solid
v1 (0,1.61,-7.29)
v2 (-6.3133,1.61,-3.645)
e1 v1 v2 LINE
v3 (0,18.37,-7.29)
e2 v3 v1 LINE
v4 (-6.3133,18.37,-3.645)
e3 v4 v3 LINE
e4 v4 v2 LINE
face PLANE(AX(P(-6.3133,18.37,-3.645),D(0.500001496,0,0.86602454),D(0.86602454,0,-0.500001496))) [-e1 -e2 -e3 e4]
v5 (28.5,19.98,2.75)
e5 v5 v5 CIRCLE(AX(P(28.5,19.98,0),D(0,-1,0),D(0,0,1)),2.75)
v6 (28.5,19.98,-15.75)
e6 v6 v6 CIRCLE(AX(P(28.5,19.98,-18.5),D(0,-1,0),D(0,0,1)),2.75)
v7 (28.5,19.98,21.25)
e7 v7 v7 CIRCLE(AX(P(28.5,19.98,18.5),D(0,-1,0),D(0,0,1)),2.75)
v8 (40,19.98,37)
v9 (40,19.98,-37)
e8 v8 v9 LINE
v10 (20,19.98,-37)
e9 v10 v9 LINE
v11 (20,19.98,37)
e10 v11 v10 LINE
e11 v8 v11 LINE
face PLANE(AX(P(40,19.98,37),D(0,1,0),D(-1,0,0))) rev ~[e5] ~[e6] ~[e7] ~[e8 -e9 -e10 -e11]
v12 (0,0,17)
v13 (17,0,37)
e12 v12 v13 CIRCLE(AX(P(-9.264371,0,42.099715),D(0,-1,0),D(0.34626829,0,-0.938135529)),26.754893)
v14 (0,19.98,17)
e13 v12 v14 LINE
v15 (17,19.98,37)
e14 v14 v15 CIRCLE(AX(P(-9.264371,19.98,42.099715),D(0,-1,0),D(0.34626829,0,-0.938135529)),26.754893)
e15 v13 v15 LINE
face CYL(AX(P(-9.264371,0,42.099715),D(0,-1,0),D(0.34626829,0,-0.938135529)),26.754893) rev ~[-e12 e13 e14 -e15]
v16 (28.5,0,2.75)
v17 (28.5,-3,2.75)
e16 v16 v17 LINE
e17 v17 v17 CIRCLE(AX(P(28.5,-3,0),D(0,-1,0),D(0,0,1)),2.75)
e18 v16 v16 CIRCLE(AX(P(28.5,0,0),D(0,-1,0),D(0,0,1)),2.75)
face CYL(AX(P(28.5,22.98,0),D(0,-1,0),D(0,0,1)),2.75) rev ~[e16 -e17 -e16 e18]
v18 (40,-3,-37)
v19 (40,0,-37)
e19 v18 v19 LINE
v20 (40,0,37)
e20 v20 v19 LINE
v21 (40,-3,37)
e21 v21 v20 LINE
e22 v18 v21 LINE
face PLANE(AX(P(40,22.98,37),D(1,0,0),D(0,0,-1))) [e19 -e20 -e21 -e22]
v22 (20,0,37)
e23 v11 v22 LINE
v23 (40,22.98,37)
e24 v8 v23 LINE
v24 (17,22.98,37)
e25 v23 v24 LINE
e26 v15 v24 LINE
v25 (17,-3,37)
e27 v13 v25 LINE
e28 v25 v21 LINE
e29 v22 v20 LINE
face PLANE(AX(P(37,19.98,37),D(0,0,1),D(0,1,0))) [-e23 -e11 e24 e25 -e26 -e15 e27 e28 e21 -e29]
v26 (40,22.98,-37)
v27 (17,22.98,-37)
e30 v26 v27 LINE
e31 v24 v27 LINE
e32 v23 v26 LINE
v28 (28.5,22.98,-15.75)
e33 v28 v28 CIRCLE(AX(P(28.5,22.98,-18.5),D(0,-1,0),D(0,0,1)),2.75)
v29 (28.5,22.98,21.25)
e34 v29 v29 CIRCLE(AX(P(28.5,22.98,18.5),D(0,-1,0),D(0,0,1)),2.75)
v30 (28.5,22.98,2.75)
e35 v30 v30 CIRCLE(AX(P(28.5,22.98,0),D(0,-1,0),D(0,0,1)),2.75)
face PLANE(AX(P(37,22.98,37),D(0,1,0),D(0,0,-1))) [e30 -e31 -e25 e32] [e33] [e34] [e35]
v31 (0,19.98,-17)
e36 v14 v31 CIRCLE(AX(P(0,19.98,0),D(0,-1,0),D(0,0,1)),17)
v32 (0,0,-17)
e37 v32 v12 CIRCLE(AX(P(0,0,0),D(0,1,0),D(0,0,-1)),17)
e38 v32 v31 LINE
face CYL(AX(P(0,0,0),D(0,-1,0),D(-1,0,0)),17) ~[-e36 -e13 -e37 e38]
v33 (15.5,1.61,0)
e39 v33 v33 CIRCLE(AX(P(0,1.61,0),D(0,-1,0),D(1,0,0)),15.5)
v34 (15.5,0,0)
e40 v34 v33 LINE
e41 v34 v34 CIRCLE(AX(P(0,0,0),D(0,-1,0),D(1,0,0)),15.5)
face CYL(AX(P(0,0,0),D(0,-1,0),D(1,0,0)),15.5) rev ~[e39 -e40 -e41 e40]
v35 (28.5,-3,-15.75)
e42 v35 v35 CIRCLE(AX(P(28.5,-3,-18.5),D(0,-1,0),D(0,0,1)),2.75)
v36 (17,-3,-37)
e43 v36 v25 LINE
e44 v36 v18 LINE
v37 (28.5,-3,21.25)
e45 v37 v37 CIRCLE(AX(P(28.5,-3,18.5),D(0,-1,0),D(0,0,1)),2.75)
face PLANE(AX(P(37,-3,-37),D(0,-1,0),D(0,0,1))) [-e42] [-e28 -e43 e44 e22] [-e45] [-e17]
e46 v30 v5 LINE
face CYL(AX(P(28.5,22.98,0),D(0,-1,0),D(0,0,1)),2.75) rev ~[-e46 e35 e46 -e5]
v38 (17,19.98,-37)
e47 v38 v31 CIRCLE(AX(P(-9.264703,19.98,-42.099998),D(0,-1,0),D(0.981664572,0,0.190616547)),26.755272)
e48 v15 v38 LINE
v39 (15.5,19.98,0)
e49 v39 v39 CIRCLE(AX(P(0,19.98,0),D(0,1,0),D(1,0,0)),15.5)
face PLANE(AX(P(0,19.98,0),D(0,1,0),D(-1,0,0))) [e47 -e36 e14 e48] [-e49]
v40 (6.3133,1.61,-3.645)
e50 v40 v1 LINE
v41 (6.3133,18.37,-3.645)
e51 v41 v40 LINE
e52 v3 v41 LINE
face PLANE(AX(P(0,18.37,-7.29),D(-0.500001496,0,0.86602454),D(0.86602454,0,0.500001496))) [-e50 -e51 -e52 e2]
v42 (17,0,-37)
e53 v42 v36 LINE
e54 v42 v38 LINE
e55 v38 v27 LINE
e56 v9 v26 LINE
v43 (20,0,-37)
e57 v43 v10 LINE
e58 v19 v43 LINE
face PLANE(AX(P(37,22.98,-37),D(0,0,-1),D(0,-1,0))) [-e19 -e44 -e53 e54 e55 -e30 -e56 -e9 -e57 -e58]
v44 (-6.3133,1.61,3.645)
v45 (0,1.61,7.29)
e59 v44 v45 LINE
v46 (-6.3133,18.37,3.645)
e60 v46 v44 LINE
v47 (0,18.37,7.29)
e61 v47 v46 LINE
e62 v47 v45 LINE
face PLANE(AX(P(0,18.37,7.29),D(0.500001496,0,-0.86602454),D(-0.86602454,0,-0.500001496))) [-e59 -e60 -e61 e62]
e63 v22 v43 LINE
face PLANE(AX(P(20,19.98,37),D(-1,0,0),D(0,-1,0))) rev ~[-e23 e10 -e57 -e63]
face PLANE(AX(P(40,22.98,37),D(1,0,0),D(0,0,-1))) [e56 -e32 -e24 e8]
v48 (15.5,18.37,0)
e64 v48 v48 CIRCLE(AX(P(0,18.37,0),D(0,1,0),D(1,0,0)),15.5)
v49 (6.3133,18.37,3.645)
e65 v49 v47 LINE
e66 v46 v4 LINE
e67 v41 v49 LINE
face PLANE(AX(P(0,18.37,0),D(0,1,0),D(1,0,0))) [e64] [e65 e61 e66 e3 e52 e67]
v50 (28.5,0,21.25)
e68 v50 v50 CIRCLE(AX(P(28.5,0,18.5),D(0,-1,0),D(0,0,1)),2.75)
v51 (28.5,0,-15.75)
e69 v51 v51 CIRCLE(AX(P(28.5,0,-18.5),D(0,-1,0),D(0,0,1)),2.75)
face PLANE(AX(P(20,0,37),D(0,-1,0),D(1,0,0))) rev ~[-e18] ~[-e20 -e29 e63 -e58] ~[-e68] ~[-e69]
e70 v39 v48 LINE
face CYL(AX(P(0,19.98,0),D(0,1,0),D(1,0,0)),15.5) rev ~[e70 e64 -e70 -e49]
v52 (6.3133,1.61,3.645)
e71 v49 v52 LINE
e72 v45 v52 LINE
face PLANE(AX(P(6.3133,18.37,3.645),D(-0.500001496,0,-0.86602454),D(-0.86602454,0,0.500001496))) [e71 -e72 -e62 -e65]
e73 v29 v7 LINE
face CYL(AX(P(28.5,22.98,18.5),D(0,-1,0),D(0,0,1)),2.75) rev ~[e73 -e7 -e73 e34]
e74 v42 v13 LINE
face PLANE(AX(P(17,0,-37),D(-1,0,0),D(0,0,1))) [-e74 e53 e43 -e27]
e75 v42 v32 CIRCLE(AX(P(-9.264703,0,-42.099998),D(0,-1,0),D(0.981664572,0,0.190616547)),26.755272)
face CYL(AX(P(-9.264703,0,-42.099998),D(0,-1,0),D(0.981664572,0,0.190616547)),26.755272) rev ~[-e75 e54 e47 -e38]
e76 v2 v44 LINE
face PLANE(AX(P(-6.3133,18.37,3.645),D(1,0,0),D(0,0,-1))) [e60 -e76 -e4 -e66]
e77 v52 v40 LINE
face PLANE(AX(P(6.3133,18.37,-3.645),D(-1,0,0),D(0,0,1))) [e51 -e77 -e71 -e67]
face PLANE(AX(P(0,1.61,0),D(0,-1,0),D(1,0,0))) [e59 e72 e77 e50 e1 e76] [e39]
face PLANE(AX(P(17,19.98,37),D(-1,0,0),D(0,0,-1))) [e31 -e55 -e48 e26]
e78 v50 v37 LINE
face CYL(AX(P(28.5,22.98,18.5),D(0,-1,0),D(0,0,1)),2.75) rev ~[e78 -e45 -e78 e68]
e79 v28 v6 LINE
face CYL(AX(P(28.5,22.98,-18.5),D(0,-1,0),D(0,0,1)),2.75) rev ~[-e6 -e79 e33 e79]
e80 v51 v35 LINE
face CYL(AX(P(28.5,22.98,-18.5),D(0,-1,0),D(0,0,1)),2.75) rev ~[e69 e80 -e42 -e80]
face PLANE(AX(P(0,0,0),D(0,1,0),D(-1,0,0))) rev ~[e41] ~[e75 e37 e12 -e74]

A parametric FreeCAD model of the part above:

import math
import FreeCAD as App
import Part
import Sketcher
Q = App.Units.Quantity


def add_polygon(sketch, points):
    """Adds a closed chain of lines whose ends are joined by coincident constraints."""
    first, n = sketch.GeometryCount, len(points)
    for a, b in zip(points, points[1:] + points[:1]):
        sketch.addGeometry(Part.LineSegment(App.Vector(*a, 0), App.Vector(*b, 0)), False)
    for i in range(n):
        sketch.addConstraint(Sketcher.Constraint("Coincident", first + i, 2, first + (i + 1) % n, 1))

doc = App.newDocument("Part")
body = doc.addObject("PartDesign::Body", "Body")

# Sketch on XZ plane
sketch1 = doc.addObject("Sketcher::SketchObject", "Sketch")
body.addObject(sketch1)
sketch1.AttachmentSupport = (doc.XZ_Plane, [""])
sketch1.MapMode = "FlatFace"
sketch1.addGeometry(Part.Circle(App.Vector(0, 0, 0), App.Vector(0, 0, 1), 17), False)
sketch1.addConstraint([
    Sketcher.Constraint("Coincident", 0, 3, -1, 1),
    Sketcher.Constraint("Diameter", 0, Q("34 mm")),
])
pad1 = doc.addObject("PartDesign::Pad", "Pad")
body.addObject(pad1)
pad1.Profile = sketch1
pad1.Length = 19.98
pad1.Reversed = True

# Sketch on XZ plane
sketch2 = doc.addObject("Sketcher::SketchObject", "Sketch001")
body.addObject(sketch2)
sketch2.AttachmentSupport = (doc.XZ_Plane, [""])
sketch2.MapMode = "FlatFace"
sketch2.AttachmentOffset = App.Placement(App.Vector(0, 0, -19.98), App.Rotation())
sketch2.addGeometry(Part.Circle(App.Vector(0, 0, 0), App.Vector(0, 0, 1), 16), False)
sketch2.addConstraint([
    Sketcher.Constraint("Coincident", 0, 3, -1, 1),
    Sketcher.Constraint("Diameter", 0, Q("31 mm")),
])
pocket1 = doc.addObject("PartDesign::Pocket", "Pocket")
body.addObject(pocket1)
pocket1.Profile = sketch2
pocket1.Length = 1.61
pocket1.Reversed = True

# Sketch on XZ plane
sketch3 = doc.addObject("Sketcher::SketchObject", "Sketch002")
body.addObject(sketch3)
sketch3.AttachmentSupport = (doc.XZ_Plane, [""])
sketch3.MapMode = "FlatFace"
sketch3.addGeometry(Part.Circle(App.Vector(0, 0, 0), App.Vector(0, 0, 1), 16), False)
sketch3.addConstraint([
    Sketcher.Constraint("Coincident", 0, 3, -1, 1),
    Sketcher.Constraint("Diameter", 0, Q("31 mm")),
])
pocket2 = doc.addObject("PartDesign::Pocket", "Pocket001")
body.addObject(pocket2)
pocket2.Profile = sketch3
pocket2.Length = 1.61

# Sketch on XZ plane
sketch4 = doc.addObject("Sketcher::SketchObject", "Sketch003")
body.addObject(sketch4)
sketch4.AttachmentSupport = (doc.XZ_Plane, [""])
sketch4.MapMode = "FlatFace"
sketch4.addGeometry([
    Part.ArcOfCircle(Part.Circle(App.Vector(-9, -42, 0), App.Vector(0, 0, 1), 27), math.radians(11), math.radians(70)),  # 0
    Part.LineSegment(App.Vector(17, -37, 0), App.Vector(37, -37, 0)),  # 1
    Part.LineSegment(App.Vector(37, -37, 0), App.Vector(37, 37, 0)),  # 2
    Part.LineSegment(App.Vector(37, 37, 0), App.Vector(17, 37, 0)),  # 3
    Part.ArcOfCircle(Part.Circle(App.Vector(-9, 42, 0), App.Vector(0, 0, 1), 27), math.radians(-70), math.radians(-11)),  # 4
    Part.ArcOfCircle(Part.Circle(App.Vector(0, 0, 0), App.Vector(0, 0, 1), 17), math.radians(-90), math.radians(90)),  # 5
], False)
sketch4.addConstraint([
    Sketcher.Constraint("Coincident", 0, 1, 1, 1),
    Sketcher.Constraint("Coincident", 1, 2, 2, 1),
    Sketcher.Constraint("Coincident", 2, 2, 3, 1),
    Sketcher.Constraint("Coincident", 3, 2, 4, 2),
    Sketcher.Constraint("Coincident", 4, 1, 5, 2),
    Sketcher.Constraint("Coincident", 5, 1, 0, 2),
    Sketcher.Constraint("Horizontal", 1),
    Sketcher.Constraint("Vertical", 2),
    Sketcher.Constraint("Horizontal", 3),
    Sketcher.Constraint("Coincident", 5, 3, -1, 1),
    Sketcher.Constraint("Equal", 0, 4),
    Sketcher.Constraint("Symmetric", 0, 3, 4, 3, -1),
    Sketcher.Constraint("PointOnObject", 4, 1, -2),
    Sketcher.Constraint("Vertical", 0, 1, 3, 2),
    Sketcher.Constraint("DistanceX", 1, 1, 1, 2, Q("20 mm")),
    Sketcher.Constraint("Radius", 5, Q("17 mm")),
    Sketcher.Constraint("DistanceY", 4, 1, 3, 2, Q("20 mm")),
    Sketcher.Constraint("DistanceX", -1, 1, 0, 1, Q("17 mm")),
    Sketcher.Constraint("Radius", 0, Q("26.755 mm")),
])
pad2 = doc.addObject("PartDesign::Pad", "Pad001")
body.addObject(pad2)
pad2.Profile = sketch4
pad2.Length = 19.98
pad2.Reversed = True

# Sketch on XZ plane
sketch5 = doc.addObject("Sketcher::SketchObject", "Sketch004")
body.addObject(sketch5)
sketch5.AttachmentSupport = (doc.XZ_Plane, [""])
sketch5.MapMode = "FlatFace"
sketch5.AttachmentOffset = App.Placement(App.Vector(0, 0, -19.98), App.Rotation())
add_polygon(sketch5, [(17, 37), (37, 37), (37, -37), (17, -37)])  # lines 0-3
sketch5.addConstraint([
    Sketcher.Constraint("Horizontal", 0),
    Sketcher.Constraint("Vertical", 1),
    Sketcher.Constraint("Horizontal", 2),
    Sketcher.Constraint("Vertical", 3),
    Sketcher.Constraint("DistanceX", 0, 1, 0, 2, Q("20 mm")),
    Sketcher.Constraint("DistanceY", 1, 2, 1, 1, Q("74 mm")),
    Sketcher.Constraint("DistanceX", -1, 1, 0, 2, Q("37 mm")),
    Sketcher.Constraint("DistanceY", -1, 1, 0, 2, Q("37 mm")),
])
pad3 = doc.addObject("PartDesign::Pad", "Pad002")
body.addObject(pad3)
pad3.Profile = sketch5
pad3.Length = 3
pad3.Reversed = True

# Sketch on XZ plane
sketch6 = doc.addObject("Sketcher::SketchObject", "Sketch005")
body.addObject(sketch6)
sketch6.AttachmentSupport = (doc.XZ_Plane, [""])
sketch6.MapMode = "FlatFace"
add_polygon(sketch6, [(37, 37), (17, 37), (17, -37), (37, -37)])  # lines 0-3
sketch6.addConstraint([
    Sketcher.Constraint("Horizontal", 0),
    Sketcher.Constraint("Vertical", 1),
    Sketcher.Constraint("Horizontal", 2),
    Sketcher.Constraint("Vertical", 3),
    Sketcher.Constraint("DistanceX", 0, 2, 0, 1, Q("20 mm")),
    Sketcher.Constraint("DistanceY", 1, 2, 1, 1, Q("74 mm")),
    Sketcher.Constraint("DistanceX", -1, 1, 0, 2, Q("17 mm")),
    Sketcher.Constraint("DistanceY", -1, 1, 0, 2, Q("37 mm")),
])
pad4 = doc.addObject("PartDesign::Pad", "Pad003")
body.addObject(pad4)
pad4.Profile = sketch6
pad4.Length = 3

# Sketch on YZ plane
sketch7 = doc.addObject("Sketcher::SketchObject", "Sketch006")
body.addObject(sketch7)
sketch7.AttachmentSupport = (doc.YZ_Plane, [""])
sketch7.MapMode = "FlatFace"
sketch7.AttachmentOffset = App.Placement(App.Vector(0, 0, 37), App.Rotation())
add_polygon(sketch7, [(23, 37), (-3, 37), (-3, -37), (23, -37)])  # lines 0-3
sketch7.addConstraint([
    Sketcher.Constraint("Horizontal", 0),
    Sketcher.Constraint("Vertical", 1),
    Sketcher.Constraint("Horizontal", 2),
    Sketcher.Constraint("Vertical", 3),
    Sketcher.Constraint("DistanceY", 1, 2, 1, 1, Q("74 mm")),
    Sketcher.Constraint("DistanceX", 0, 2, -1, 1, Q("3 mm")),
    Sketcher.Constraint("DistanceY", -1, 1, 0, 2, Q("37 mm")),
    Sketcher.Constraint("DistanceX", 0, 2, 0, 1, Q("25.98 mm")),
])
pad5 = doc.addObject("PartDesign::Pad", "Pad004")
body.addObject(pad5)
pad5.Profile = sketch7
pad5.Length = 3

# Sketch on XY plane
sketch8 = doc.addObject("Sketcher::SketchObject", "Sketch007")
body.addObject(sketch8)
sketch8.AttachmentSupport = (doc.XY_Plane, [""])
sketch8.MapMode = "FlatFace"
sketch8.AttachmentOffset = App.Placement(App.Vector(0, 0, 37), App.Rotation())
add_polygon(sketch8, [(20, 0), (40, 0), (40, 20), (20, 20)])  # lines 0-3
sketch8.addConstraint([
    Sketcher.Constraint("Horizontal", 0),
    Sketcher.Constraint("Vertical", 1),
    Sketcher.Constraint("Horizontal", 2),
    Sketcher.Constraint("Vertical", 3),
    Sketcher.Constraint("PointOnObject", 0, 2, -1),
    Sketcher.Constraint("DistanceX", 0, 1, 0, 2, Q("20 mm")),
    Sketcher.Constraint("DistanceX", -1, 1, 0, 2, Q("40 mm")),
    Sketcher.Constraint("DistanceY", 1, 1, 1, 2, Q("19.98 mm")),
])
pocket3 = doc.addObject("PartDesign::Pocket", "Pocket002")
body.addObject(pocket3)
pocket3.Profile = sketch8
pocket3.Type = "ThroughAll"

# Sketch on XZ plane
sketch9 = doc.addObject("Sketcher::SketchObject", "Sketch008")
body.addObject(sketch9)
sketch9.AttachmentSupport = (doc.XZ_Plane, [""])
sketch9.MapMode = "FlatFace"
sketch9.AttachmentOffset = App.Placement(App.Vector(0, 0, -18.37), App.Rotation())
add_polygon(sketch9, [(6, -4), (0, -7), (-6, -4), (-6, 4), (0, 7), (6, 4)])  # lines 0-5
sketch9.addConstraint([
    Sketcher.Constraint("Vertical", 2),
    Sketcher.Constraint("Vertical", 5),
    Sketcher.Constraint("Symmetric", 0, 2, 3, 2, -1, 1),
    Sketcher.Constraint("Symmetric", 1, 2, 4, 2, -1, 1),
    Sketcher.Constraint("PointOnObject", 0, 2, -2),
    Sketcher.Constraint("Parallel", 0, 3),
    Sketcher.Constraint("Horizontal", 2, 2, 4, 2),
    Sketcher.Constraint("Angle", 0, Q("-150 deg")),
    Sketcher.Constraint("DistanceY", 2, 1, 2, 2, Q("7.29 mm")),
    Sketcher.Constraint("Distance", 0, Q("7.29 mm")),
])
pocket4 = doc.addObject("PartDesign::Pocket", "Pocket003")
body.addObject(pocket4)
pocket4.Profile = sketch9
pocket4.Type = "ThroughAll"
pocket4.Reversed = True

# Sketch on XZ plane
sketch10 = doc.addObject("Sketcher::SketchObject", "Sketch009")
body.addObject(sketch10)
sketch10.AttachmentSupport = (doc.XZ_Plane, [""])
sketch10.MapMode = "FlatFace"
sketch10.AttachmentOffset = App.Placement(App.Vector(0, 0, -22.98), App.Rotation())
sketch10.addGeometry(Part.Circle(App.Vector(28.5, 0, 0), App.Vector(0, 0, 1), 2.8), False)
sketch10.addConstraint([
    Sketcher.Constraint("PointOnObject", 0, 3, -1),
    Sketcher.Constraint("Diameter", 0, Q("5.5 mm")),
    Sketcher.Constraint("DistanceX", -1, 1, 0, 3, Q("28.5 mm")),
])
doc.recompute()
hole = doc.addObject("PartDesign::Hole", "Hole")
body.addObject(hole)
hole.Profile = sketch10
hole.ThreadType = "None"
hole.Diameter = 5.5
hole.DepthType = "ThroughAll"
hole.Reversed = True

# Sketch on XZ plane
sketch11 = doc.addObject("Sketcher::SketchObject", "Sketch010")
body.addObject(sketch11)
sketch11.AttachmentSupport = (doc.XZ_Plane, [""])
sketch11.MapMode = "FlatFace"
sketch11.AttachmentOffset = App.Placement(App.Vector(0, 0, -22.98), App.Rotation())
sketch11.addGeometry([
    Part.Circle(App.Vector(28.5, 18.5, 0), App.Vector(0, 0, 1), 2.8),
    Part.Circle(App.Vector(28.5, -18.5, 0), App.Vector(0, 0, 1), 2.8),
], False)
sketch11.addConstraint([
    Sketcher.Constraint("Equal", 0, 1),
    Sketcher.Constraint("Symmetric", 0, 3, 1, 3, -1),
    Sketcher.Constraint("Diameter", 0, Q("5.5 mm")),
    Sketcher.Constraint("DistanceY", 1, 3, 0, 3, Q("37 mm")),
    Sketcher.Constraint("DistanceX", -1, 1, 0, 3, Q("28.5 mm")),
])
doc.recompute()
hole2 = doc.addObject("PartDesign::Hole", "Hole001")
body.addObject(hole2)
hole2.Profile = sketch11
hole2.ThreadType = "None"
hole2.Diameter = 5.5
hole2.DepthType = "ThroughAll"
hole2.Reversed = True

doc.recompute()
